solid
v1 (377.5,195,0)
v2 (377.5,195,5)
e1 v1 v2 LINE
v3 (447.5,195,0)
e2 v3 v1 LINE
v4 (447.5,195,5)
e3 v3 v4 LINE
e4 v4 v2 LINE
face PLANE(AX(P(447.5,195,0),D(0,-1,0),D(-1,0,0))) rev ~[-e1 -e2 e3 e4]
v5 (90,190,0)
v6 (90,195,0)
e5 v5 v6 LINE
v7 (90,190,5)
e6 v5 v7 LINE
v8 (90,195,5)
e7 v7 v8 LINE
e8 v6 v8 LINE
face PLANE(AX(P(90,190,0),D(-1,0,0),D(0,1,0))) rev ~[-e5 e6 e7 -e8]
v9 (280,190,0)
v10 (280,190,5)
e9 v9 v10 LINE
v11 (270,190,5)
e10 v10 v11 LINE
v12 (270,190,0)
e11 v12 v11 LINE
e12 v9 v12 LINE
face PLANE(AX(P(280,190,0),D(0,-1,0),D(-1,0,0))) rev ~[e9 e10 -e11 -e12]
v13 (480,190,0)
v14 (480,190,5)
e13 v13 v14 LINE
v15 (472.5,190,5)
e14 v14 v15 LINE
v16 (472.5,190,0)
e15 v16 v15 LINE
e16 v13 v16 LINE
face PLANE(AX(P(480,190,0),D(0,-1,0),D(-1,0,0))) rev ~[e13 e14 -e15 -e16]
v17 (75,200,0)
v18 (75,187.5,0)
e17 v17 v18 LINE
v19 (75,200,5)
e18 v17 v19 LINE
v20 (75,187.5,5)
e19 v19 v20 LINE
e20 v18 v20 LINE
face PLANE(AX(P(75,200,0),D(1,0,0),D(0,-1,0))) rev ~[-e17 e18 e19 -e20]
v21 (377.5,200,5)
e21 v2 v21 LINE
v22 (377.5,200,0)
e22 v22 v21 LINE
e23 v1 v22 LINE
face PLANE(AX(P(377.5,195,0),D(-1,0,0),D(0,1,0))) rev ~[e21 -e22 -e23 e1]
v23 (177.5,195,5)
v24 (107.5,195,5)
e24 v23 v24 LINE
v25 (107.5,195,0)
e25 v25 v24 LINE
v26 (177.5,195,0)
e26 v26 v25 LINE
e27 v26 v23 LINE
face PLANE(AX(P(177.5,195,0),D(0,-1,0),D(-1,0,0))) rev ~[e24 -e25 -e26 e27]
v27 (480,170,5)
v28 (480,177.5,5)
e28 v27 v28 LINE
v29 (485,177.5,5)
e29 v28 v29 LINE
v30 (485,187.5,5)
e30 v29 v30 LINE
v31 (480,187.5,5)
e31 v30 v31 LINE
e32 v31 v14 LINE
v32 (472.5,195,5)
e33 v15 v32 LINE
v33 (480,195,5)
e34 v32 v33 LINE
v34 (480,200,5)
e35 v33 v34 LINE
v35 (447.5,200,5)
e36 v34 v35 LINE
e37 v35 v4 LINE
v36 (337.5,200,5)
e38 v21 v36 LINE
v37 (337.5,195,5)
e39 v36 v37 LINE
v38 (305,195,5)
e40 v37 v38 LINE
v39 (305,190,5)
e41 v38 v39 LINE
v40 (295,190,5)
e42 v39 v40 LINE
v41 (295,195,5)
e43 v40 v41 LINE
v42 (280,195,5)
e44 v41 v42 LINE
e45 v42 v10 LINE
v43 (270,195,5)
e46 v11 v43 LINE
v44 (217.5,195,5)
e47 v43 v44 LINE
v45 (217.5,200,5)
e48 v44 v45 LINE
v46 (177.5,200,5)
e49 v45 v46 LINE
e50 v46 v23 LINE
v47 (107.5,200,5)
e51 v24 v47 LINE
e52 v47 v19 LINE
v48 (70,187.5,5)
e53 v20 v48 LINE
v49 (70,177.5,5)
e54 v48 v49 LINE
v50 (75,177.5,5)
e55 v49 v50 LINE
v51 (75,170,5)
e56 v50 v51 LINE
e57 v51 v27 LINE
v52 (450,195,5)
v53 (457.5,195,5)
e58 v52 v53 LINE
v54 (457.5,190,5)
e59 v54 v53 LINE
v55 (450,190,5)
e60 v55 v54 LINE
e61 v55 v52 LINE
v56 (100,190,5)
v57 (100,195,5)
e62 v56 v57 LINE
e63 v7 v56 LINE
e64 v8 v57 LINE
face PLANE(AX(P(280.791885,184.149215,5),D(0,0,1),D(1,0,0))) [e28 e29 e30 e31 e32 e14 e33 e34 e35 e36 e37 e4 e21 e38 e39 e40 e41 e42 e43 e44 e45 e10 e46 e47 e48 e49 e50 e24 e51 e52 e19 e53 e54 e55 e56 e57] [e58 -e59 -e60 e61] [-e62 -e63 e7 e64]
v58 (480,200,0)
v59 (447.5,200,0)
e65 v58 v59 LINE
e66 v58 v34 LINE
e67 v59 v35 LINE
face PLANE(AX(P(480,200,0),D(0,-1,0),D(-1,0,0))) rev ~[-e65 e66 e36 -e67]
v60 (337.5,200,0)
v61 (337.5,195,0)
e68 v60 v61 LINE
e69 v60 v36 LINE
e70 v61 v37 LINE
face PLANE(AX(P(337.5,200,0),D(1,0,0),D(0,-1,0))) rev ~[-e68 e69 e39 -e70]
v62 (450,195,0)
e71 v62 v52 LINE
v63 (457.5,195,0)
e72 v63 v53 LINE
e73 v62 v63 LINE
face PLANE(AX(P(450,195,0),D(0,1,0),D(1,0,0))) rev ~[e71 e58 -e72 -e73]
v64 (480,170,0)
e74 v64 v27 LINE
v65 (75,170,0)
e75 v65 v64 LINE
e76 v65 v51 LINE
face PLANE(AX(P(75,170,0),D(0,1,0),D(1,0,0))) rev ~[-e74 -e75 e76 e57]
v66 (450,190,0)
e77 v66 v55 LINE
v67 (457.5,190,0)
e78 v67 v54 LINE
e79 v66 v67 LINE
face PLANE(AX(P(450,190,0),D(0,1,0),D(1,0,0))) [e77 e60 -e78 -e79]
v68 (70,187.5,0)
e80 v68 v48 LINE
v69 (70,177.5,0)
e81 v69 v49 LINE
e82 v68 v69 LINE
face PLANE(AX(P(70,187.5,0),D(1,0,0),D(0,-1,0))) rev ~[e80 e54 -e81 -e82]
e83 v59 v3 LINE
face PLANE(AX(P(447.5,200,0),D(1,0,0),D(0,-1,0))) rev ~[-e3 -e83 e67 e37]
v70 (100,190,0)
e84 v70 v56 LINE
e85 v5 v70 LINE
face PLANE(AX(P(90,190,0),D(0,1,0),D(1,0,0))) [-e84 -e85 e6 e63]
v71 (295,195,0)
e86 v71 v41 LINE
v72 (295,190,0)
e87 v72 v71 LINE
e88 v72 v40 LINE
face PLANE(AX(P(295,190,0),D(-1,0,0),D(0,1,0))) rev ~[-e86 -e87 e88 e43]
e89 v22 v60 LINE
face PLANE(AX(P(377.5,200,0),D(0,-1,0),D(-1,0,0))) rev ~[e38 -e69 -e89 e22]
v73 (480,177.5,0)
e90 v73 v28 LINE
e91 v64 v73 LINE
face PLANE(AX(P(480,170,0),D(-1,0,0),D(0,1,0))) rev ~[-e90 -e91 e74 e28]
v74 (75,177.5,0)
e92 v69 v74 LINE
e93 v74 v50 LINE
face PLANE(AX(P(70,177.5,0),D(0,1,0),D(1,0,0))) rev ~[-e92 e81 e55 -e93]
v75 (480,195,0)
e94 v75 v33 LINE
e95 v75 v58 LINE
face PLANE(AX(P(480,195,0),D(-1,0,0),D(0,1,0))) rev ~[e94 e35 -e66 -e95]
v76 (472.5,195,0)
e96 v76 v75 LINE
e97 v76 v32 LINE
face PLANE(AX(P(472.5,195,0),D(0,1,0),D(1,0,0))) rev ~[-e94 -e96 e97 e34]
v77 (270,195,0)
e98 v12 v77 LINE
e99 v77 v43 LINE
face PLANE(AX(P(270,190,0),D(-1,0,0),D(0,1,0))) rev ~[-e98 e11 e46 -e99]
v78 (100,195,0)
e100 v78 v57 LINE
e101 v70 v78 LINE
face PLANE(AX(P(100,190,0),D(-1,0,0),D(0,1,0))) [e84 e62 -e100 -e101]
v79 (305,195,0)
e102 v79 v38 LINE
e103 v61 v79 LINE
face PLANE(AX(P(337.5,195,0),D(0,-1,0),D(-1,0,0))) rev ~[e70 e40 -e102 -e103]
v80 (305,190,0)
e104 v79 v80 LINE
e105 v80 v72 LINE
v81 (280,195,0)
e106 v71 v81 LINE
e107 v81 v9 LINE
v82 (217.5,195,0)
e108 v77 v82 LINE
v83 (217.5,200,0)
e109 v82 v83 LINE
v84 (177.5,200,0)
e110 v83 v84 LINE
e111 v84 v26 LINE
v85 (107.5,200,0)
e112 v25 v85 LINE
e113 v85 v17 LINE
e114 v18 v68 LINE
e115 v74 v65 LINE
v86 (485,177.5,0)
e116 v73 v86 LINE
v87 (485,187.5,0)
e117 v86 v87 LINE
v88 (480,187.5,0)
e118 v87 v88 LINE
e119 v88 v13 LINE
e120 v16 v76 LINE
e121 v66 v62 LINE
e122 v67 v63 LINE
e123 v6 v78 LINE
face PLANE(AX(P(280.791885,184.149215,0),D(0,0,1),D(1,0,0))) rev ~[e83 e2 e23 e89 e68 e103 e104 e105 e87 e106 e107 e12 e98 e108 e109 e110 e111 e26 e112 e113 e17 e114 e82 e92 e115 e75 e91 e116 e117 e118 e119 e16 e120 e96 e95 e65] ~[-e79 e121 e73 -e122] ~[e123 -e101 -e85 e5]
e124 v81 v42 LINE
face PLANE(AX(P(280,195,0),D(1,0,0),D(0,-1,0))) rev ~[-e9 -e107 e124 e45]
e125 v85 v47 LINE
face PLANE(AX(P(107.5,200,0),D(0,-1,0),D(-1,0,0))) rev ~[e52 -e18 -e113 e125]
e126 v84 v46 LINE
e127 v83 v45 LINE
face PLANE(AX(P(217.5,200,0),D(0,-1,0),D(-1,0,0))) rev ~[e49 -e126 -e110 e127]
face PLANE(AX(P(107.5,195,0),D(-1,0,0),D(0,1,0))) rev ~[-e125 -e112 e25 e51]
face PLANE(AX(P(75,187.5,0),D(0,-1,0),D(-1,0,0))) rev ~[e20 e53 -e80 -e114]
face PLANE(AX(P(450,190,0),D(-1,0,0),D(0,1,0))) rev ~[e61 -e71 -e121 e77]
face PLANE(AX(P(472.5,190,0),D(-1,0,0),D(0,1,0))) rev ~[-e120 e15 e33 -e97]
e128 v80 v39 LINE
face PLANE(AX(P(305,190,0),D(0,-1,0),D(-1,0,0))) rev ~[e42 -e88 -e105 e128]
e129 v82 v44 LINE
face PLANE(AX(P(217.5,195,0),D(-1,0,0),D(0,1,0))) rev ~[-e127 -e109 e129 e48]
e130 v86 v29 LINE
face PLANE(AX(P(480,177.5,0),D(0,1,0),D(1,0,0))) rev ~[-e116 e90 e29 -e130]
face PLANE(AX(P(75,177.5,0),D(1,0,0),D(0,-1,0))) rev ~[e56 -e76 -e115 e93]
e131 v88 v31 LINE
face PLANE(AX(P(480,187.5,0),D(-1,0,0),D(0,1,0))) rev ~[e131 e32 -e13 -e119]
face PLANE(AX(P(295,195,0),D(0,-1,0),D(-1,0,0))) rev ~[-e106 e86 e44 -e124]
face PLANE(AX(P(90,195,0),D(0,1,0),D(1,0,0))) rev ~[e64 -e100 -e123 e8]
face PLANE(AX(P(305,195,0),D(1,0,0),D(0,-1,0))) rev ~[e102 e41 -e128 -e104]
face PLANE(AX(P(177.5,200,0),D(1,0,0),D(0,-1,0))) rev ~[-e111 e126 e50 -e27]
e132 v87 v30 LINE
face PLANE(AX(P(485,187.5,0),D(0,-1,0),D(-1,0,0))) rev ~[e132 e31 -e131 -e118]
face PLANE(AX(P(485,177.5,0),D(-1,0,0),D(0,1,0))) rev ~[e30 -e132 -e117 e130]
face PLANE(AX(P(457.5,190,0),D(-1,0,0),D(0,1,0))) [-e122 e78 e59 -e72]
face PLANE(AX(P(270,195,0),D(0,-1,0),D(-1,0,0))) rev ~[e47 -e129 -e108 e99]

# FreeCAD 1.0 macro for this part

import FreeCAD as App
import Part
import Sketcher
from FreeCAD import Vector
Q = App.Units.Quantity


def add_polygon(sketch, points):
    """Adds a closed chain of lines whose ends are joined by coincident constraints."""
    first, n = sketch.GeometryCount, len(points)
    for a, b in zip(points, points[1:] + points[:1]):
        sketch.addGeometry(Part.LineSegment(App.Vector(*a, 0), App.Vector(*b, 0)), False)
    for i in range(n):
        sketch.addConstraint(Sketcher.Constraint("Coincident", first + i, 2, first + (i + 1) % n, 1))

doc = App.newDocument("Part")
params = doc.addObject("Spreadsheet::Sheet", "Params")
for row, (alias, value) in enumerate([
    ("sketch1_width", "5 mm"),
    ("sketch1_width2", "70 mm"),
    ("sketch1_width3", "40 mm"),
    ("sketch1_width4", "10 mm"),
    ("sketch1_width5", "15 mm"),
    ("pad1_length", "5 mm"),
], start=1):
    params.set(f"A{row}", alias)
    params.set(f"B{row}", "=" + value)
    params.setAlias(f"B{row}", alias)

body = doc.addObject("PartDesign::Body", "Body")

# Sketch on XY plane
sketch1 = body.newObject("Sketcher::SketchObject", "Sketch")
sketch1.AttachmentSupport = (doc.getObject("XY_Plane"), [""])
sketch1.MapMode = "FlatFace"
add_polygon(sketch1, [(480, 177.5), (485, 177.5), (485, 187.5), (480, 187.5), (480, 190), (472.5, 190), (472.5, 195), (480, 195), (480, 200), (447.5, 200), (447.5, 195), (377.5, 195), (377.5, 200), (337.5, 200), (337.5, 195), (305, 195), (305, 190), (295, 190), (295, 195), (280, 195), (280, 190), (270, 190), (270, 195), (217.5, 195), (217.5, 200), (177.5, 200), (177.5, 195), (107.5, 195), (107.5, 200), (75, 200), (75, 187.5), (70, 187.5), (70, 177.5), (75, 177.5), (75, 170), (480, 170)])  # lines 0-35
add_polygon(sketch1, [(100, 190), (90, 190), (90, 195), (100, 195)])  # lines 36-39
add_polygon(sketch1, [(457.5, 190), (450, 190), (450, 195), (457.5, 195)])  # lines 40-43
sketch1.addConstraint([
    Sketcher.Constraint("Horizontal", 0),
    Sketcher.Constraint("Vertical", 1),
    Sketcher.Constraint("Horizontal", 2),
    Sketcher.Constraint("Vertical", 3),
    Sketcher.Constraint("Horizontal", 4),
    Sketcher.Constraint("Vertical", 5),
    Sketcher.Constraint("Horizontal", 6),
    Sketcher.Constraint("Vertical", 7),
    Sketcher.Constraint("Horizontal", 8),
    Sketcher.Constraint("Vertical", 9),
    Sketcher.Constraint("Horizontal", 10),
    Sketcher.Constraint("Vertical", 11),
    Sketcher.Constraint("Horizontal", 12),
    Sketcher.Constraint("Vertical", 13),
    Sketcher.Constraint("Horizontal", 14),
    Sketcher.Constraint("Vertical", 15),
    Sketcher.Constraint("Horizontal", 16),
    Sketcher.Constraint("Vertical", 17),
    Sketcher.Constraint("Horizontal", 18),
    Sketcher.Constraint("Vertical", 19),
    Sketcher.Constraint("Horizontal", 20),
    Sketcher.Constraint("Vertical", 21),
    Sketcher.Constraint("Horizontal", 22),
    Sketcher.Constraint("Vertical", 23),
    Sketcher.Constraint("Horizontal", 24),
    Sketcher.Constraint("Vertical", 25),
    Sketcher.Constraint("Horizontal", 26),
    Sketcher.Constraint("Vertical", 27),
    Sketcher.Constraint("Horizontal", 28),
    Sketcher.Constraint("Vertical", 29),
    Sketcher.Constraint("Horizontal", 30),
    Sketcher.Constraint("Vertical", 31),
    Sketcher.Constraint("Horizontal", 32),
    Sketcher.Constraint("Vertical", 33),
    Sketcher.Constraint("Horizontal", 34),
    Sketcher.Constraint("Vertical", 35),
    Sketcher.Constraint("Horizontal", 36),
    Sketcher.Constraint("Vertical", 37),
    Sketcher.Constraint("Horizontal", 38),
    Sketcher.Constraint("Vertical", 39),
    Sketcher.Constraint("Horizontal", 40),
    Sketcher.Constraint("Vertical", 41),
    Sketcher.Constraint("Horizontal", 42),
    Sketcher.Constraint("Vertical", 43),
    Sketcher.Constraint("Horizontal", 6, 2, 9, 2),
    Sketcher.Constraint("Horizontal", 8, 2, 11, 2),
    Sketcher.Constraint("Horizontal", 10, 2, 13, 2),
    Sketcher.Constraint("Horizontal", 4, 2, 15, 2),
    Sketcher.Constraint("Horizontal", 14, 2, 17, 2),
    Sketcher.Constraint("Horizontal", 16, 2, 19, 2),
    Sketcher.Constraint("Horizontal", 18, 2, 21, 2),
    Sketcher.Constraint("Horizontal", 12, 2, 23, 2),
    Sketcher.Constraint("Horizontal", 22, 2, 25, 2),
    Sketcher.Constraint("Horizontal", 24, 2, 27, 2),
    Sketcher.Constraint("Horizontal", 2, 2, 29, 2),
    Sketcher.Constraint("Horizontal", 0, 2, 31, 2),
    Sketcher.Constraint("Horizontal", 20, 2, 36, 2),
    Sketcher.Constraint("Horizontal", 26, 2, 37, 2),
    Sketcher.Constraint("Horizontal", 39, 2, 40, 2),
    Sketcher.Constraint("Horizontal", 38, 2, 41, 2),
    Sketcher.Constraint("Vertical", 3, 2, 6, 2),
    Sketcher.Constraint("Vertical", 29, 2, 32, 2),
    Sketcher.Constraint("Vertical", 7, 2, 34, 2),
    Sketcher.Constraint("Equal", 8, 14),
    Sketcher.Constraint("Equal", 16, 20),
    Sketcher.Constraint("Equal", 12, 24),
    Sketcher.Constraint("Equal", 10, 26),
    Sketcher.Constraint("Equal", 14, 28),
    Sketcher.Constraint("Equal", 2, 30),
    Sketcher.Constraint("Equal", 20, 36),
    Sketcher.Constraint("Equal", 6, 40),
    Sketcher.Constraint("Equal", 38, 1),
    Sketcher.Constraint("Equal", 32, 5),
    Sketcher.Constraint("Equal", 5, 7),
    Sketcher.Constraint("Equal", 42, 33),
    Sketcher.Constraint("DistanceX", 0, 1, 0, 2, Q("5 mm")),
    Sketcher.Constraint("DistanceX", 10, 2, 10, 1, Q("70 mm")),
    Sketcher.Constraint("DistanceX", 12, 2, 12, 1, Q("40 mm")),
    Sketcher.Constraint("DistanceX", 16, 2, 16, 1, Q("10 mm")),
    Sketcher.Constraint("DistanceX", 18, 2, 18, 1, Q("15 mm")),
    Sketcher.Constraint("DistanceX", 34, 1, 34, 2, Q("405 mm")),
    Sketcher.Constraint("DistanceX", 4, 2, 4, 1, Q("7.5 mm")),
    Sketcher.Constraint("DistanceX", 8, 2, 8, 1, Q("32.5 mm")),
    Sketcher.Constraint("DistanceY", 3, 1, 3, 2, Q("2.5 mm")),
    Sketcher.Constraint("DistanceX", -1, 1, 0, 2, Q("485 mm")),
    Sketcher.Constraint("DistanceY", -1, 1, 3, 2, Q("190 mm")),
    Sketcher.Constraint("DistanceX", -1, 1, 36, 2, Q("90 mm")),
    Sketcher.Constraint("DistanceX", -1, 1, 40, 2, Q("450 mm")),
])
sketch1.setExpression("Constraints[119]", "Params.sketch1_width")
sketch1.setExpression("Constraints[120]", "Params.sketch1_width2")
sketch1.setExpression("Constraints[121]", "Params.sketch1_width3")
sketch1.setExpression("Constraints[122]", "Params.sketch1_width4")
sketch1.setExpression("Constraints[123]", "Params.sketch1_width5")
pad1 = body.newObject("PartDesign::Pad", "Pad")
pad1.Profile = sketch1
pad1.setExpression("Length", "Params.pad1_length")

doc.recompute()
